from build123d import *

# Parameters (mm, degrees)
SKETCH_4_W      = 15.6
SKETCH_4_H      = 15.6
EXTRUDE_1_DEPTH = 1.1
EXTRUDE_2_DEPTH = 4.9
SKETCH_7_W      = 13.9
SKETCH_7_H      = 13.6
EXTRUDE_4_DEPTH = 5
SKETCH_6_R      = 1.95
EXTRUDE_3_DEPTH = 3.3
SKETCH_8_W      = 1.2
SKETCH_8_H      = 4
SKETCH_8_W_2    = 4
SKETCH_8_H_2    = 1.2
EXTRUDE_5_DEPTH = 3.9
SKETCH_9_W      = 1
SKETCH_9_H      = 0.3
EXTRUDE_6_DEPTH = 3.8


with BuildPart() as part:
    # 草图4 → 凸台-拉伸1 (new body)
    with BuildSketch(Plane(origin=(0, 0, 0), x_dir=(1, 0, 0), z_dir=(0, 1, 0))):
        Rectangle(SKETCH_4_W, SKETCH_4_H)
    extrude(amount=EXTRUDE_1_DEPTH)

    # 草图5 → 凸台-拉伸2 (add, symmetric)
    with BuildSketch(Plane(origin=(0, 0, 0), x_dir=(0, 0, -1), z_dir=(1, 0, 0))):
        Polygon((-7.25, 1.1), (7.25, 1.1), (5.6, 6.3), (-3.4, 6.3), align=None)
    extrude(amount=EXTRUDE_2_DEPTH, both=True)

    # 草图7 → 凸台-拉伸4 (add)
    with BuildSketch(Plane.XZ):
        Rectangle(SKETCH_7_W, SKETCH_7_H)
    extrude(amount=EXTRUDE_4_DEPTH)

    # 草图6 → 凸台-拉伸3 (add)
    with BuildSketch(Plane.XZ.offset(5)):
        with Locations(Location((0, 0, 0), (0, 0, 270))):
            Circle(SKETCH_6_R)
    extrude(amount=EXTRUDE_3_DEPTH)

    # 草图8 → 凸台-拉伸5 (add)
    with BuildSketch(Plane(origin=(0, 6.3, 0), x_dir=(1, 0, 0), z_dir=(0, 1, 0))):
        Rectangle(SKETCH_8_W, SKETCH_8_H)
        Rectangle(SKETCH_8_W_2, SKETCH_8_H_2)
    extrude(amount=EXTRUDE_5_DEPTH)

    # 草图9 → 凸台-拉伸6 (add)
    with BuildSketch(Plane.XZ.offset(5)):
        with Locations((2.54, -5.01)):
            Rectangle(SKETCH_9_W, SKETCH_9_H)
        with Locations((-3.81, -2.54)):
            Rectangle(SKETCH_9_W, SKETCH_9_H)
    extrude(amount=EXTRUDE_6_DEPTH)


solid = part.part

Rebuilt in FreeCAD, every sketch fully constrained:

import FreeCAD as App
import Part
import Sketcher

doc = App.newDocument("Part")
body = doc.addObject("PartDesign::Body", "Body")

# Sketch on XZ plane
sketch1 = body.newObject("Sketcher::SketchObject", "Sketch")
sketch1.AttachmentSupport = (doc.getObject("XZ_Plane"), [""])
sketch1.MapMode = "FlatFace"
sketch1.addGeometry([
    Part.LineSegment(App.Vector(-8, -8, 0), App.Vector(-8, 8, 0)),
    Part.LineSegment(App.Vector(-8, 8, 0), App.Vector(8, 8, 0)),
    Part.LineSegment(App.Vector(8, 8, 0), App.Vector(8, -8, 0)),
    Part.LineSegment(App.Vector(8, -8, 0), App.Vector(-8, -8, 0)),
], False)
sketch1.addConstraint([
    Sketcher.Constraint("Coincident", 0, 2, 1, 1),
    Sketcher.Constraint("Coincident", 1, 2, 2, 1),
    Sketcher.Constraint("Coincident", 2, 2, 3, 1),
    Sketcher.Constraint("Coincident", 3, 2, 0, 1),
    Sketcher.Constraint("Vertical", 0),
    Sketcher.Constraint("Horizontal", 1),
    Sketcher.Constraint("Vertical", 2),
    Sketcher.Constraint("Horizontal", 3),
    Sketcher.Constraint("Symmetric", 0, 2, 2, 2, -1, 1),
    Sketcher.Constraint("Equal", 3, 0),
    Sketcher.Constraint("DistanceX", 1, 1, 1, 2, 15.6),
])
pad1 = body.newObject("PartDesign::Pad", "Pad")
pad1.Profile = sketch1
pad1.Length = 1.1
pad1.Reversed = True

# Sketch on YZ plane
sketch2 = body.newObject("Sketcher::SketchObject", "Sketch001")
sketch2.AttachmentSupport = (doc.getObject("YZ_Plane"), [""])
sketch2.MapMode = "FlatFace"
sketch2.addGeometry([
    Part.LineSegment(App.Vector(1, 7, 0), App.Vector(1, -7, 0)),
    Part.LineSegment(App.Vector(1, -7, 0), App.Vector(6, -6, 0)),
    Part.LineSegment(App.Vector(6, -6, 0), App.Vector(6, 3, 0)),
    Part.LineSegment(App.Vector(6, 3, 0), App.Vector(1, 7, 0)),
], False)
sketch2.addConstraint([
    Sketcher.Constraint("Coincident", 0, 2, 1, 1),
    Sketcher.Constraint("Coincident", 1, 2, 2, 1),
    Sketcher.Constraint("Coincident", 2, 2, 3, 1),
    Sketcher.Constraint("Coincident", 3, 2, 0, 1),
    Sketcher.Constraint("Vertical", 0),
    Sketcher.Constraint("Vertical", 2),
    Sketcher.Constraint("DistanceY", 2, 1, 2, 2, 9.0),
    Sketcher.Constraint("DistanceY", 0, 2, 0, 1, 14.5),
    Sketcher.Constraint("DistanceX", -1, 1, 0, 2, 1.1),
    Sketcher.Constraint("DistanceX", -1, 1, 1, 2, 6.3),
    Sketcher.Constraint("DistanceY", 1, 2, -1, 1, 5.6),
    Sketcher.Constraint("DistanceY", 0, 2, -1, 1, 7.25),
])
pad2 = body.newObject("PartDesign::Pad", "Pad001")
pad2.Profile = sketch2
pad2.Length = 9.8
pad2.Midplane = True

# Sketch on XZ plane
sketch3 = body.newObject("Sketcher::SketchObject", "Sketch002")
sketch3.AttachmentSupport = (doc.getObject("XZ_Plane"), [""])
sketch3.MapMode = "FlatFace"
sketch3.addGeometry([
    Part.LineSegment(App.Vector(-7, 7, 0), App.Vector(-7, -7, 0)),
    Part.LineSegment(App.Vector(-7, -7, 0), App.Vector(7, -7, 0)),
    Part.LineSegment(App.Vector(7, -7, 0), App.Vector(7, 7, 0)),
    Part.LineSegment(App.Vector(7, 7, 0), App.Vector(-7, 7, 0)),
], False)
sketch3.addConstraint([
    Sketcher.Constraint("Coincident", 0, 2, 1, 1),
    Sketcher.Constraint("Coincident", 1, 2, 2, 1),
    Sketcher.Constraint("Coincident", 2, 2, 3, 1),
    Sketcher.Constraint("Coincident", 3, 2, 0, 1),
    Sketcher.Constraint("Vertical", 0),
    Sketcher.Constraint("Horizontal", 1),
    Sketcher.Constraint("Vertical", 2),
    Sketcher.Constraint("Horizontal", 3),
    Sketcher.Constraint("Symmetric", 0, 2, 2, 2, -1, 1),
    Sketcher.Constraint("DistanceX", 1, 1, 1, 2, 13.9),
    Sketcher.Constraint("DistanceY", 0, 2, 0, 1, 13.6),
])
pad3 = body.newObject("PartDesign::Pad", "Pad002")
pad3.Profile = sketch3
pad3.Length = 5

# Sketch on XZ plane
sketch4 = body.newObject("Sketcher::SketchObject", "Sketch003")
sketch4.AttachmentSupport = (doc.getObject("XZ_Plane"), [""])
sketch4.MapMode = "FlatFace"
sketch4.AttachmentOffset = App.Placement(App.Vector(0, 0, 5), App.Rotation())
sketch4.addGeometry(Part.Circle(App.Vector(0, 0, 0), App.Vector(0, 0, 1), 1.9), False)
sketch4.addConstraint([
    Sketcher.Constraint("Coincident", 0, 3, -1, 1),
    Sketcher.Constraint("Diameter", 0, 3.9),
])
pad4 = body.newObject("PartDesign::Pad", "Pad003")
pad4.Profile = sketch4
pad4.Length = 3.3

# Sketch on XZ plane
sketch5 = body.newObject("Sketcher::SketchObject", "Sketch004")
sketch5.AttachmentSupport = (doc.getObject("XZ_Plane"), [""])
sketch5.MapMode = "FlatFace"
sketch5.AttachmentOffset = App.Placement(App.Vector(0, 0, -6.3), App.Rotation())
sketch5.addGeometry([
    Part.LineSegment(App.Vector(-0.6, 0.6, 0), App.Vector(-0.6, 2, 0)),  # 0
    Part.LineSegment(App.Vector(-0.6, 2, 0), App.Vector(0.6, 2, 0)),  # 1
    Part.LineSegment(App.Vector(0.6, 2, 0), App.Vector(0.6, 0.6, 0)),  # 2
    Part.LineSegment(App.Vector(0.6, 0.6, 0), App.Vector(2, 0.6, 0)),  # 3
    Part.LineSegment(App.Vector(2, 0.6, 0), App.Vector(2, -0.6, 0)),  # 4
    Part.LineSegment(App.Vector(2, -0.6, 0), App.Vector(0.6, -0.6, 0)),  # 5
    Part.LineSegment(App.Vector(0.6, -0.6, 0), App.Vector(0.6, -2, 0)),  # 6
    Part.LineSegment(App.Vector(0.6, -2, 0), App.Vector(-0.6, -2, 0)),  # 7
    Part.LineSegment(App.Vector(-0.6, -2, 0), App.Vector(-0.6, -0.6, 0)),  # 8
    Part.LineSegment(App.Vector(-0.6, -0.6, 0), App.Vector(-2, -0.6, 0)),  # 9
    Part.LineSegment(App.Vector(-2, -0.6, 0), App.Vector(-2, 0.6, 0)),  # 10
    Part.LineSegment(App.Vector(-2, 0.6, 0), App.Vector(-0.6, 0.6, 0)),  # 11
], False)
sketch5.addConstraint([
    Sketcher.Constraint("Coincident", 0, 2, 1, 1),
    Sketcher.Constraint("Coincident", 1, 2, 2, 1),
    Sketcher.Constraint("Coincident", 2, 2, 3, 1),
    Sketcher.Constraint("Coincident", 3, 2, 4, 1),
    Sketcher.Constraint("Coincident", 4, 2, 5, 1),
    Sketcher.Constraint("Coincident", 5, 2, 6, 1),
    Sketcher.Constraint("Coincident", 6, 2, 7, 1),
    Sketcher.Constraint("Coincident", 7, 2, 8, 1),
    Sketcher.Constraint("Coincident", 8, 2, 9, 1),
    Sketcher.Constraint("Coincident", 9, 2, 10, 1),
    Sketcher.Constraint("Coincident", 10, 2, 11, 1),
    Sketcher.Constraint("Coincident", 11, 2, 0, 1),
    Sketcher.Constraint("Vertical", 0),
    Sketcher.Constraint("Horizontal", 1),
    Sketcher.Constraint("Vertical", 2),
    Sketcher.Constraint("Horizontal", 3),
    Sketcher.Constraint("Vertical", 4),
    Sketcher.Constraint("Horizontal", 5),
    Sketcher.Constraint("Vertical", 6),
    Sketcher.Constraint("Horizontal", 7),
    Sketcher.Constraint("Vertical", 8),
    Sketcher.Constraint("Horizontal", 9),
    Sketcher.Constraint("Vertical", 10),
    Sketcher.Constraint("Horizontal", 11),
    Sketcher.Constraint("Symmetric", 0, 2, 6, 2, -1, 1),
    Sketcher.Constraint("Symmetric", 2, 2, 8, 2, -1, 1),
    Sketcher.Constraint("Symmetric", 4, 2, 10, 2, -1, 1),
    Sketcher.Constraint("Symmetric", 5, 2, 8, 2, -2),
    Sketcher.Constraint("Equal", 11, 0),
    Sketcher.Constraint("Equal", 7, 4),
    Sketcher.Constraint("DistanceX", 1, 1, 1, 2, 1.2),
    Sketcher.Constraint("DistanceX", 3, 1, 3, 2, 1.4),
])
pad5 = body.newObject("PartDesign::Pad", "Pad004")
pad5.Profile = sketch5
pad5.Length = 3.9
pad5.Reversed = True

# Sketch on XZ plane
sketch6 = body.newObject("Sketcher::SketchObject", "Sketch005")
sketch6.AttachmentSupport = (doc.getObject("XZ_Plane"), [""])
sketch6.MapMode = "FlatFace"
sketch6.AttachmentOffset = App.Placement(App.Vector(0, 0, 5), App.Rotation())
sketch6.addGeometry([
    Part.LineSegment(App.Vector(2.04, -4.86, 0), App.Vector(2.04, -5.16, 0)),  # 0
    Part.LineSegment(App.Vector(2.04, -5.16, 0), App.Vector(3.04, -5.16, 0)),  # 1
    Part.LineSegment(App.Vector(3.04, -5.16, 0), App.Vector(3.04, -4.86, 0)),  # 2
    Part.LineSegment(App.Vector(3.04, -4.86, 0), App.Vector(2.04, -4.86, 0)),  # 3
    Part.LineSegment(App.Vector(-4.31, -2.39, 0), App.Vector(-4.31, -2.69, 0)),  # 4
    Part.LineSegment(App.Vector(-4.31, -2.69, 0), App.Vector(-3.31, -2.69, 0)),  # 5
    Part.LineSegment(App.Vector(-3.31, -2.69, 0), App.Vector(-3.31, -2.39, 0)),  # 6
    Part.LineSegment(App.Vector(-3.31, -2.39, 0), App.Vector(-4.31, -2.39, 0)),  # 7
], False)
sketch6.addConstraint([
    Sketcher.Constraint("Coincident", 0, 2, 1, 1),
    Sketcher.Constraint("Coincident", 1, 2, 2, 1),
    Sketcher.Constraint("Coincident", 2, 2, 3, 1),
    Sketcher.Constraint("Coincident", 3, 2, 0, 1),
    Sketcher.Constraint("Coincident", 4, 2, 5, 1),
    Sketcher.Constraint("Coincident", 5, 2, 6, 1),
    Sketcher.Constraint("Coincident", 6, 2, 7, 1),
    Sketcher.Constraint("Coincident", 7, 2, 4, 1),
    Sketcher.Constraint("Vertical", 0),
    Sketcher.Constraint("Horizontal", 1),
    Sketcher.Constraint("Vertical", 2),
    Sketcher.Constraint("Horizontal", 3),
    Sketcher.Constraint("Vertical", 4),
    Sketcher.Constraint("Horizontal", 5),
    Sketcher.Constraint("Vertical", 6),
    Sketcher.Constraint("Horizontal", 7),
    Sketcher.Constraint("Equal", 3, 5),
    Sketcher.Constraint("Equal", 2, 4),
    Sketcher.Constraint("DistanceX", 1, 1, 1, 2, 1.0),
    Sketcher.Constraint("DistanceY", 0, 2, 0, 1, 0.3),
    Sketcher.Constraint("DistanceX", -1, 1, 0, 2, 2.04),
    Sketcher.Constraint("DistanceY", 0, 2, -1, 1, 5.16),
    Sketcher.Constraint("DistanceX", 4, 2, -1, 1, 4.31),
    Sketcher.Constraint("DistanceY", 4, 2, -1, 1, 2.69),
])
pad6 = body.newObject("PartDesign::Pad", "Pad005")
pad6.Profile = sketch6
pad6.Length = 3.8

doc.recompute()
